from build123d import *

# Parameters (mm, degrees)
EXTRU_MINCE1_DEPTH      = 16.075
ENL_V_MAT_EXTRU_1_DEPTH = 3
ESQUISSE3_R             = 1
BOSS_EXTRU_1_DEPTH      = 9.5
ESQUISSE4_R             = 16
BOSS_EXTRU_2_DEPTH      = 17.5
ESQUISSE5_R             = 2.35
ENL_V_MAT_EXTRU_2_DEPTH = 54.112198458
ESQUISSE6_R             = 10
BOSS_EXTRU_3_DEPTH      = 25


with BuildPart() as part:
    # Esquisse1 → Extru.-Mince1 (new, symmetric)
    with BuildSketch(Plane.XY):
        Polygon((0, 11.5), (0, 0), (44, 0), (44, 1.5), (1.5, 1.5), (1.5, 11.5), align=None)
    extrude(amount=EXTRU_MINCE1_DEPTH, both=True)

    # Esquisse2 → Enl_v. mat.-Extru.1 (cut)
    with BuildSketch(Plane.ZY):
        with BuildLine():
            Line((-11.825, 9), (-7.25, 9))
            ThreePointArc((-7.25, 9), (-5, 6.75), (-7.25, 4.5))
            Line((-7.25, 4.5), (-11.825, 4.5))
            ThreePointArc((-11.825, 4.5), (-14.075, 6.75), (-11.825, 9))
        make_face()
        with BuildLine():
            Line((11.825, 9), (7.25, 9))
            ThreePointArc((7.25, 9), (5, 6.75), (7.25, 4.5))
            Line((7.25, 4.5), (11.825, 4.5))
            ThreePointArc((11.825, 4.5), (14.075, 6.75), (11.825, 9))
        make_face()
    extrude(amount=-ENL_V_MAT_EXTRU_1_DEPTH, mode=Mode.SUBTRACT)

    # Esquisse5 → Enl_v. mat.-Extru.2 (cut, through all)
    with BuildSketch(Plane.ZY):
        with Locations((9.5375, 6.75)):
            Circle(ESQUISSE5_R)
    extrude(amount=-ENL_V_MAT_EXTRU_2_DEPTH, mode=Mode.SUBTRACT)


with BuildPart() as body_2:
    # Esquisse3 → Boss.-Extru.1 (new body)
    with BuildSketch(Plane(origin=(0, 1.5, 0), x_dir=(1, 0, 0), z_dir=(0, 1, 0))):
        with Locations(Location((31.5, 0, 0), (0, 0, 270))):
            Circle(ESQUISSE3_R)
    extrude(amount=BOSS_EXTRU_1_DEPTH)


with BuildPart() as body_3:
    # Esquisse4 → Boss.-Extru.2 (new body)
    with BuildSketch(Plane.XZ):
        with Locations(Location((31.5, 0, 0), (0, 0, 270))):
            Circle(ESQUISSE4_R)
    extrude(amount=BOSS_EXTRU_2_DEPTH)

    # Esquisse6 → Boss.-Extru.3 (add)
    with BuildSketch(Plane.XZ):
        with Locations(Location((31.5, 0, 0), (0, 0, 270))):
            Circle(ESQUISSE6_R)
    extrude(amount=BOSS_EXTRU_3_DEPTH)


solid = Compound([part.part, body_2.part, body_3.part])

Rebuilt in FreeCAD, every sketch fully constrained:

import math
import FreeCAD as App
import Part
import Sketcher

V = App.Vector

doc = App.newDocument("Part")
body = doc.addObject("PartDesign::Body", "Body")

# Sketch on XY plane
sketch1 = doc.addObject("Sketcher::SketchObject", "Sketch")
body.addObject(sketch1)
sketch1.AttachmentSupport = (doc.XY_Plane, [""])
sketch1.MapMode = "FlatFace"
sketch1.addGeometry(Part.LineSegment(V(0, 11.5, 0), V(0, 0, 0)), False)
sketch1.addGeometry(Part.LineSegment(V(0, 0, 0), V(44, 0, 0)), False)
sketch1.addGeometry(Part.LineSegment(V(44, 0, 0), V(44, 1.5, 0)), False)
sketch1.addGeometry(Part.LineSegment(V(44, 1.5, 0), V(1.5, 1.5, 0)), False)
sketch1.addGeometry(Part.LineSegment(V(1.5, 1.5, 0), V(1.5, 11.5, 0)), False)
sketch1.addGeometry(Part.LineSegment(V(1.5, 11.5, 0), V(0, 11.5, 0)), False)
sketch1.addConstraint(Sketcher.Constraint("Coincident", 0, 2, 1, 1))
sketch1.addConstraint(Sketcher.Constraint("Coincident", 1, 2, 2, 1))
sketch1.addConstraint(Sketcher.Constraint("Coincident", 2, 2, 3, 1))
sketch1.addConstraint(Sketcher.Constraint("Coincident", 3, 2, 4, 1))
sketch1.addConstraint(Sketcher.Constraint("Coincident", 4, 2, 5, 1))
sketch1.addConstraint(Sketcher.Constraint("Coincident", 5, 2, 0, 1))
sketch1.addConstraint(Sketcher.Constraint("Vertical", 0))
sketch1.addConstraint(Sketcher.Constraint("Horizontal", 1))
sketch1.addConstraint(Sketcher.Constraint("Vertical", 2))
sketch1.addConstraint(Sketcher.Constraint("Horizontal", 3))
sketch1.addConstraint(Sketcher.Constraint("Vertical", 4))
sketch1.addConstraint(Sketcher.Constraint("Horizontal", 5))
sketch1.addConstraint(Sketcher.Constraint("Coincident", 0, 2, -1, 1))
sketch1.addConstraint(Sketcher.Constraint("Equal", 5, 2))
sketch1.addConstraint(Sketcher.Constraint("DistanceX", 1, 1, 1, 2, 44.0))
sketch1.addConstraint(Sketcher.Constraint("DistanceY", 4, 1, 4, 2, 10.0))
sketch1.addConstraint(Sketcher.Constraint("DistanceX", 3, 2, 3, 1, 42.5))
pad1 = doc.addObject("PartDesign::Pad", "Pad")
body.addObject(pad1)
pad1.Profile = sketch1
pad1.Length = 32.15
pad1.Midplane = True

# Sketch on YZ plane
sketch2 = doc.addObject("Sketcher::SketchObject", "Sketch001")
body.addObject(sketch2)
sketch2.AttachmentSupport = (doc.YZ_Plane, [""])
sketch2.MapMode = "FlatFace"
sketch2.addGeometry(Part.LineSegment(V(9, -7.2, 0), V(9, -11.8, 0)), False)
sketch2.addGeometry(Part.ArcOfCircle(Part.Circle(V(6.8, -11.8, 0), V(0, 0, 1), 2.2), math.radians(180), math.radians(360)), False)
sketch2.addGeometry(Part.LineSegment(V(4.5, -11.8, 0), V(4.5, -7.2, 0)), False)
sketch2.addGeometry(Part.ArcOfCircle(Part.Circle(V(6.8, -7.2, 0), V(0, 0, 1), 2.2), math.radians(0), math.radians(180)), False)
sketch2.addGeometry(Part.LineSegment(V(9, 11.8, 0), V(9, 7.2, 0)), False)
sketch2.addGeometry(Part.ArcOfCircle(Part.Circle(V(6.8, 7.2, 0), V(0, 0, 1), 2.2), math.radians(180), math.radians(360)), False)
sketch2.addGeometry(Part.LineSegment(V(4.5, 7.2, 0), V(4.5, 11.8, 0)), False)
sketch2.addGeometry(Part.ArcOfCircle(Part.Circle(V(6.8, 11.8, 0), V(0, 0, 1), 2.2), math.radians(0), math.radians(180)), False)
sketch2.addConstraint(Sketcher.Constraint("Tangent", 0, 2, 1, 2))
sketch2.addConstraint(Sketcher.Constraint("Tangent", 1, 1, 2, 1))
sketch2.addConstraint(Sketcher.Constraint("Tangent", 2, 2, 3, 2))
sketch2.addConstraint(Sketcher.Constraint("Tangent", 3, 1, 0, 1))
sketch2.addConstraint(Sketcher.Constraint("Tangent", 4, 2, 5, 2))
sketch2.addConstraint(Sketcher.Constraint("Tangent", 5, 1, 6, 1))
sketch2.addConstraint(Sketcher.Constraint("Tangent", 6, 2, 7, 2))
sketch2.addConstraint(Sketcher.Constraint("Tangent", 7, 1, 4, 1))
sketch2.addConstraint(Sketcher.Constraint("Vertical", 0))
sketch2.addConstraint(Sketcher.Constraint("Vertical", 2))
sketch2.addConstraint(Sketcher.Constraint("Vertical", 4))
sketch2.addConstraint(Sketcher.Constraint("Vertical", 6))
sketch2.addConstraint(Sketcher.Constraint("Equal", 3, 5))
sketch2.addConstraint(Sketcher.Constraint("Symmetric", 3, 3, 5, 3, -1))
sketch2.addConstraint(Sketcher.Constraint("Equal", 2, 4))
sketch2.addConstraint(Sketcher.Constraint("Radius", 1, 2.25))
sketch2.addConstraint(Sketcher.Constraint("DistanceX", -1, 1, 0, 2, 9.0))
sketch2.addConstraint(Sketcher.Constraint("DistanceY", 3, 3, 5, 3, 14.5))
sketch2.addConstraint(Sketcher.Constraint("DistanceY", 0, 2, 0, 1, 4.575))
pocket1 = doc.addObject("PartDesign::Pocket", "Pocket")
body.addObject(pocket1)
pocket1.Profile = sketch2
pocket1.Length = 3
pocket1.Reversed = True

# Sketch on YZ plane
sketch3 = doc.addObject("Sketcher::SketchObject", "Sketch002")
body.addObject(sketch3)
sketch3.AttachmentSupport = (doc.YZ_Plane, [""])
sketch3.MapMode = "FlatFace"
sketch3.addGeometry(Part.Circle(V(6.8, 9.5, 0), V(0, 0, 1), 2.4), False)
sketch3.addConstraint(Sketcher.Constraint("Diameter", 0, 4.7))
sketch3.addConstraint(Sketcher.Constraint("DistanceX", -1, 1, 0, 3, 6.75))
sketch3.addConstraint(Sketcher.Constraint("DistanceY", -1, 1, 0, 3, 9.5375))
pocket2 = doc.addObject("PartDesign::Pocket", "Pocket001")
body.addObject(pocket2)
pocket2.Profile = sketch3
pocket2.Type = "ThroughAll"
pocket2.Reversed = True
body2 = doc.addObject("PartDesign::Body", "Body001")

# Sketch on XZ plane
sketch4 = doc.addObject("Sketcher::SketchObject", "Sketch003")
body2.addObject(sketch4)
sketch4.AttachmentSupport = (doc.getObject("XZ_Plane001"), [""])
sketch4.MapMode = "FlatFace"
sketch4.AttachmentOffset = App.Placement(V(0, 0, -1.5), App.Rotation())
sketch4.addGeometry(Part.Circle(V(31.5, 0, 0), V(0, 0, 1), 1), False)
sketch4.addConstraint(Sketcher.Constraint("PointOnObject", 0, 3, -1))
sketch4.addConstraint(Sketcher.Constraint("Diameter", 0, 2.0))
sketch4.addConstraint(Sketcher.Constraint("DistanceX", -1, 1, 0, 3, 31.5))
pad2 = doc.addObject("PartDesign::Pad", "Pad001")
body2.addObject(pad2)
pad2.Profile = sketch4
pad2.Length = 9.5
pad2.Reversed = True
body3 = doc.addObject("PartDesign::Body", "Body002")

# Sketch on XZ plane
sketch5 = doc.addObject("Sketcher::SketchObject", "Sketch004")
body3.addObject(sketch5)
sketch5.AttachmentSupport = (doc.getObject("XZ_Plane002"), [""])
sketch5.MapMode = "FlatFace"
sketch5.addGeometry(Part.Circle(V(32, 0, 0), V(0, 0, 1), 16), False)
sketch5.addConstraint(Sketcher.Constraint("PointOnObject", 0, 3, -1))
sketch5.addConstraint(Sketcher.Constraint("Diameter", 0, 32.0))
sketch5.addConstraint(Sketcher.Constraint("DistanceX", -1, 1, 0, 3, 31.5))
pad3 = doc.addObject("PartDesign::Pad", "Pad002")
body3.addObject(pad3)
pad3.Profile = sketch5
pad3.Length = 17.5

# Sketch on XZ plane
sketch6 = doc.addObject("Sketcher::SketchObject", "Sketch005")
body3.addObject(sketch6)
sketch6.AttachmentSupport = (doc.getObject("XZ_Plane002"), [""])
sketch6.MapMode = "FlatFace"
sketch6.addGeometry(Part.Circle(V(32, 0, 0), V(0, 0, 1), 10), False)
sketch6.addConstraint(Sketcher.Constraint("PointOnObject", 0, 3, -1))
sketch6.addConstraint(Sketcher.Constraint("Diameter", 0, 20.0))
sketch6.addConstraint(Sketcher.Constraint("DistanceX", -1, 1, 0, 3, 31.5))
pad4 = doc.addObject("PartDesign::Pad", "Pad003")
body3.addObject(pad4)
pad4.Profile = sketch6
pad4.Length = 25

doc.recompute()
